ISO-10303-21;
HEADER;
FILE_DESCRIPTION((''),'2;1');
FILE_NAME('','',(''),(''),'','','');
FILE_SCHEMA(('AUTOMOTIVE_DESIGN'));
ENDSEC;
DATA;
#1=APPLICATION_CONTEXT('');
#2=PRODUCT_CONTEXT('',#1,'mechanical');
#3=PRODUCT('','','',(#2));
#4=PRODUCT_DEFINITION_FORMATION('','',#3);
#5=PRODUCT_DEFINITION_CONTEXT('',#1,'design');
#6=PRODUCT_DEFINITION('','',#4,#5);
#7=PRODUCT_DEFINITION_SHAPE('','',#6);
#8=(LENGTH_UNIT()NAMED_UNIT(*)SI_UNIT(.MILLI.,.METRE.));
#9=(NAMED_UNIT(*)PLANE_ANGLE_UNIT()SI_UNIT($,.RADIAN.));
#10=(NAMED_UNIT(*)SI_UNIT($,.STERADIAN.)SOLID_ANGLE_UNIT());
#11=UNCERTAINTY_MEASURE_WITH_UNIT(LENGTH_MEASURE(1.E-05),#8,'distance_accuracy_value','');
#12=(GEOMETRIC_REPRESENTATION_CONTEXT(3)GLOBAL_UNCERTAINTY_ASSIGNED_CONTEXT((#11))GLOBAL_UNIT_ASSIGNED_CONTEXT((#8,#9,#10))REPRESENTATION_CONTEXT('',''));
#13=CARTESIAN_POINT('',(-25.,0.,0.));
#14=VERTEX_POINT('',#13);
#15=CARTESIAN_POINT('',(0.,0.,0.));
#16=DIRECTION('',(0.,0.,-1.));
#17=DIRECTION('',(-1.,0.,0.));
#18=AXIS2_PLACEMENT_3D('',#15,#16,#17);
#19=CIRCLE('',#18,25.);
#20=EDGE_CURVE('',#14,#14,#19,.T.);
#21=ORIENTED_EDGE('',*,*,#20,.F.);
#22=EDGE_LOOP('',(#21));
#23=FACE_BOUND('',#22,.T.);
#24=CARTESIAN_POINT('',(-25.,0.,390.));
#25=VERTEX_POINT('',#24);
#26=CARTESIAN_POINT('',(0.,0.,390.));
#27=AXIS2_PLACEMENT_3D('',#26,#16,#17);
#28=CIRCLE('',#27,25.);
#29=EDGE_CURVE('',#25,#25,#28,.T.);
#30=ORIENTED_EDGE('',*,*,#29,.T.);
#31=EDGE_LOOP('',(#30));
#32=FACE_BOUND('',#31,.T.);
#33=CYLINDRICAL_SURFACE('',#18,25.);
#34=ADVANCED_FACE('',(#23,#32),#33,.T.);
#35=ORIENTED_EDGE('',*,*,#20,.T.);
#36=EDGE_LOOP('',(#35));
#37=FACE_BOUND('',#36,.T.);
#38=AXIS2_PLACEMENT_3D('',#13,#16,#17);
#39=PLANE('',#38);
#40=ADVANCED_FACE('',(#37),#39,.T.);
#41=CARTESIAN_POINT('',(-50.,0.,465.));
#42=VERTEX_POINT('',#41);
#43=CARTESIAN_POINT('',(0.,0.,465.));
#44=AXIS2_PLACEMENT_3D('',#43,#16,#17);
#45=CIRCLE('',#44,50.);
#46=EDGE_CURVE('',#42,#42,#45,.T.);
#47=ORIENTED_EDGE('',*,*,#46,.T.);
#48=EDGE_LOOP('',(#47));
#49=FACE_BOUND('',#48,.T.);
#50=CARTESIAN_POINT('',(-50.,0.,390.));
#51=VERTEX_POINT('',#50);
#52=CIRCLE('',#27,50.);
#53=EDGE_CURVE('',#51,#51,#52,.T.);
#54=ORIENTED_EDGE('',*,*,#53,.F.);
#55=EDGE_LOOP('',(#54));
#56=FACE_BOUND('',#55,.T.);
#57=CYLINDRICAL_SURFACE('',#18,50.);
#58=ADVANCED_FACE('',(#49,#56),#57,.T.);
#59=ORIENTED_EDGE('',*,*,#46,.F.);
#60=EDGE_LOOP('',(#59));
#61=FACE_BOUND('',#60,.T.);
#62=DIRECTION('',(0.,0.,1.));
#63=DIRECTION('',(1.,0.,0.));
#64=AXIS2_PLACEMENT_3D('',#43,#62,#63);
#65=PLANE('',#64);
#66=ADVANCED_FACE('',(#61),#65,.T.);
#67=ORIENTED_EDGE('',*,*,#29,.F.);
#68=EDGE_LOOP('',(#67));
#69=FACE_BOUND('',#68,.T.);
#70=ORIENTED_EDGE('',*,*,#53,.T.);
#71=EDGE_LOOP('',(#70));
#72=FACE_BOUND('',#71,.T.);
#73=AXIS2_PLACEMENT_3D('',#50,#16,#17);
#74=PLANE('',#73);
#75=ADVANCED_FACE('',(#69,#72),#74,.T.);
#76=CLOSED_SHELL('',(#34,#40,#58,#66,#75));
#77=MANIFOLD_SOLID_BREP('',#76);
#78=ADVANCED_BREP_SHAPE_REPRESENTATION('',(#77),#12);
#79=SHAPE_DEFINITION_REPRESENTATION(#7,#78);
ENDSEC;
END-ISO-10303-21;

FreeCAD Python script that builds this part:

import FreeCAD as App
import Part
import Sketcher
from FreeCAD import Vector
Q = App.Units.Quantity

doc = App.newDocument("Part")
body = doc.addObject("PartDesign::Body", "Body")

# Sketch on XZ plane
sketch1 = doc.addObject("Sketcher::SketchObject", "Sketch")
body.addObject(sketch1)
sketch1.AttachmentSupport = (doc.XZ_Plane, [""])
sketch1.MapMode = "FlatFace"
sketch1.addGeometry(Part.LineSegment(Vector(0, 465, 0), Vector(0, 0, 0)), False)
sketch1.addGeometry(Part.LineSegment(Vector(0, 0, 0), Vector(-25, 0, 0)), False)
sketch1.addGeometry(Part.LineSegment(Vector(-25, 0, 0), Vector(-25, 390, 0)), False)
sketch1.addGeometry(Part.LineSegment(Vector(-25, 390, 0), Vector(-50, 390, 0)), False)
sketch1.addGeometry(Part.LineSegment(Vector(-50, 390, 0), Vector(-50, 465, 0)), False)
sketch1.addGeometry(Part.LineSegment(Vector(-50, 465, 0), Vector(0, 465, 0)), False)
sketch1.addConstraint(Sketcher.Constraint("Coincident", 0, 2, 1, 1))
sketch1.addConstraint(Sketcher.Constraint("Coincident", 1, 2, 2, 1))
sketch1.addConstraint(Sketcher.Constraint("Coincident", 2, 2, 3, 1))
sketch1.addConstraint(Sketcher.Constraint("Coincident", 3, 2, 4, 1))
sketch1.addConstraint(Sketcher.Constraint("Coincident", 4, 2, 5, 1))
sketch1.addConstraint(Sketcher.Constraint("Coincident", 5, 2, 0, 1))
sketch1.addConstraint(Sketcher.Constraint("Vertical", 0))
sketch1.addConstraint(Sketcher.Constraint("Horizontal", 1))
sketch1.addConstraint(Sketcher.Constraint("Vertical", 2))
sketch1.addConstraint(Sketcher.Constraint("Horizontal", 3))
sketch1.addConstraint(Sketcher.Constraint("Vertical", 4))
sketch1.addConstraint(Sketcher.Constraint("Horizontal", 5))
sketch1.addConstraint(Sketcher.Constraint("Coincident", 0, 2, -1, 1))
sketch1.addConstraint(Sketcher.Constraint("Equal", 1, 3))
sketch1.addConstraint(Sketcher.Constraint("DistanceX", 1, 2, 1, 1, Q("25 mm")))
sketch1.addConstraint(Sketcher.Constraint("DistanceY", 0, 2, 0, 1, Q("465 mm")))
sketch1.addConstraint(Sketcher.Constraint("DistanceY", 2, 1, 2, 2, Q("390 mm")))
revolution = doc.addObject("PartDesign::Revolution", "Revolution")
body.addObject(revolution)
revolution.Profile = sketch1
revolution.ReferenceAxis = (sketch1, ["V_Axis"])
revolution.Angle = 360

doc.recompute()
